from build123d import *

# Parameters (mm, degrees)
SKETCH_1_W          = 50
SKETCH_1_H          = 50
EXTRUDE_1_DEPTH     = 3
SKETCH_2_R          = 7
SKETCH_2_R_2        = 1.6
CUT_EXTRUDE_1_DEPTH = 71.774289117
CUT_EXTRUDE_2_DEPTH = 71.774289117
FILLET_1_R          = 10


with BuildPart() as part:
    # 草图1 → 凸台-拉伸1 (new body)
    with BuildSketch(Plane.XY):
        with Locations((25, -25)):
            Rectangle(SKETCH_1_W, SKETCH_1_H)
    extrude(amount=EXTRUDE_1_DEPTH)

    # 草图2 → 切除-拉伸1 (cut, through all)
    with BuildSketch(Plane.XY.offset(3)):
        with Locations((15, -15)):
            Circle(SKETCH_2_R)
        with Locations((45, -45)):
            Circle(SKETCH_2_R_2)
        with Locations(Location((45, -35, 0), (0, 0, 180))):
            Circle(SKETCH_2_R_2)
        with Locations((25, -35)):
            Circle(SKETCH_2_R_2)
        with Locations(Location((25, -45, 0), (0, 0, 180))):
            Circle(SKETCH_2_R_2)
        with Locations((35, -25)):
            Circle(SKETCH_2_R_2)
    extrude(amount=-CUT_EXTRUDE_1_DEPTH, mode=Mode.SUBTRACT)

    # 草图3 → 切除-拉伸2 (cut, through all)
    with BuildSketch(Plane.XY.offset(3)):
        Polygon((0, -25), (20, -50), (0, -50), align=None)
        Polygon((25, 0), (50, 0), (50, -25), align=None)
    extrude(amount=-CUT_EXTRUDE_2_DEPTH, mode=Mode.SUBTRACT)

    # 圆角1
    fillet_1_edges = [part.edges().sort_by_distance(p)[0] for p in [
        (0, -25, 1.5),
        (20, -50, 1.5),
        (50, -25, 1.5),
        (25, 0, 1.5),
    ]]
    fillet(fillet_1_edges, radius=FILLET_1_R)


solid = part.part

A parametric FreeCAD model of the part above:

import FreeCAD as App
import Part
import Sketcher
from FreeCAD import Vector
Q = App.Units.Quantity


def edges_at(feature, points):
    """Names of the edges that pass closest to the given points."""
    edges = feature.Shape.Edges
    near = lambda p: min(range(len(edges)), key=lambda i: edges[i].distToShape(Part.Vertex(*p))[0])
    return sorted({f"Edge{near(p) + 1}" for p in points})

doc = App.newDocument("Part")
body = doc.addObject("PartDesign::Body", "Body")

sketch1 = body.newObject("Sketcher::SketchObject", "Sketch")
sketch1.AttachmentSupport = (doc.getObject("XY_Plane"), [""])
sketch1.MapMode = "FlatFace"
sketch1.addGeometry([
    Part.LineSegment(Vector(0, 0, 0), Vector(0, -50, 0)),
    Part.LineSegment(Vector(0, -50, 0), Vector(50, -50, 0)),
    Part.LineSegment(Vector(50, -50, 0), Vector(50, 0, 0)),
    Part.LineSegment(Vector(50, 0, 0), Vector(0, 0, 0)),
], False)
sketch1.addConstraint([
    Sketcher.Constraint("Coincident", 0, 2, 1, 1),
    Sketcher.Constraint("Coincident", 1, 2, 2, 1),
    Sketcher.Constraint("Coincident", 2, 2, 3, 1),
    Sketcher.Constraint("Coincident", 3, 2, 0, 1),
    Sketcher.Constraint("Vertical", 0),
    Sketcher.Constraint("Horizontal", 1),
    Sketcher.Constraint("Vertical", 2),
    Sketcher.Constraint("Horizontal", 3),
    Sketcher.Constraint("Coincident", 3, 2, -1, 1),
    Sketcher.Constraint("Equal", 3, 0),
    Sketcher.Constraint("DistanceX", 1, 1, 1, 2, Q("50 mm")),
])
pad1 = body.newObject("PartDesign::Pad", "Pad")
pad1.Profile = sketch1
pad1.Length = 3

sketch2 = body.newObject("Sketcher::SketchObject", "Sketch001")
sketch2.AttachmentSupport = (doc.getObject("XY_Plane"), [""])
sketch2.MapMode = "FlatFace"
sketch2.AttachmentOffset = App.Placement(Vector(0, 0, 3), App.Rotation())
sketch2.addGeometry([
    Part.Circle(Vector(15, -15, 0), Vector(0, 0, 1), 7),
    Part.Circle(Vector(45, -45, 0), Vector(0, 0, 1), 1.6),
    Part.Circle(Vector(45, -35, 0), Vector(0, 0, 1), 1.6),
    Part.Circle(Vector(25, -35, 0), Vector(0, 0, 1), 1.6),
    Part.Circle(Vector(25, -45, 0), Vector(0, 0, 1), 1.6),
    Part.Circle(Vector(35, -25, 0), Vector(0, 0, 1), 1.6),
], False)
sketch2.addConstraint([
    Sketcher.Constraint("Equal", 1, 2),
    Sketcher.Constraint("Equal", 2, 3),
    Sketcher.Constraint("Equal", 3, 4),
    Sketcher.Constraint("Equal", 4, 5),
    Sketcher.Constraint("Horizontal", 2, 3, 3, 3),
    Sketcher.Constraint("Horizontal", 1, 3, 4, 3),
    Sketcher.Constraint("Vertical", 1, 3, 2, 3),
    Sketcher.Constraint("Vertical", 3, 3, 4, 3),
    Sketcher.Constraint("Diameter", 0, Q("14 mm")),
    Sketcher.Constraint("Diameter", 1, Q("3.2 mm")),
    Sketcher.Constraint("DistanceX", -1, 1, 0, 3, Q("15 mm")),
    Sketcher.Constraint("DistanceY", 0, 3, -1, 1, Q("15 mm")),
    Sketcher.Constraint("DistanceX", -1, 1, 1, 3, Q("45 mm")),
    Sketcher.Constraint("DistanceY", 1, 3, -1, 1, Q("45 mm")),
    Sketcher.Constraint("DistanceY", 2, 3, -1, 1, Q("35 mm")),
    Sketcher.Constraint("DistanceX", -1, 1, 3, 3, Q("25 mm")),
    Sketcher.Constraint("DistanceX", -1, 1, 5, 3, Q("35 mm")),
    Sketcher.Constraint("DistanceY", 5, 3, -1, 1, Q("25 mm")),
])
pocket1 = body.newObject("PartDesign::Pocket", "Pocket")
pocket1.Profile = sketch2
pocket1.Type = "ThroughAll"

sketch3 = body.newObject("Sketcher::SketchObject", "Sketch002")
sketch3.AttachmentSupport = (doc.getObject("XY_Plane"), [""])
sketch3.MapMode = "FlatFace"
sketch3.AttachmentOffset = App.Placement(Vector(0, 0, 3), App.Rotation())
sketch3.addGeometry([
    Part.LineSegment(Vector(20, -50, 0), Vector(0, -25, 0)),
    Part.LineSegment(Vector(0, -25, 0), Vector(0, -50, 0)),
    Part.LineSegment(Vector(0, -50, 0), Vector(20, -50, 0)),
    Part.LineSegment(Vector(50, 0, 0), Vector(25, 0, 0)),
    Part.LineSegment(Vector(25, 0, 0), Vector(50, -25, 0)),
    Part.LineSegment(Vector(50, -25, 0), Vector(50, 0, 0)),
], False)
sketch3.addConstraint([
    Sketcher.Constraint("Coincident", 0, 2, 1, 1),
    Sketcher.Constraint("Coincident", 1, 2, 2, 1),
    Sketcher.Constraint("Coincident", 2, 2, 0, 1),
    Sketcher.Constraint("Coincident", 3, 2, 4, 1),
    Sketcher.Constraint("Coincident", 4, 2, 5, 1),
    Sketcher.Constraint("Coincident", 5, 2, 3, 1),
    Sketcher.Constraint("Vertical", 1),
    Sketcher.Constraint("Horizontal", 2),
    Sketcher.Constraint("Horizontal", 3),
    Sketcher.Constraint("Vertical", 5),
    Sketcher.Constraint("PointOnObject", 0, 2, -2),
    Sketcher.Constraint("PointOnObject", 3, 2, -1),
    Sketcher.Constraint("Horizontal", 0, 2, 4, 2),
    Sketcher.Constraint("Equal", 3, 1),
    Sketcher.Constraint("Equal", 1, 5),
    Sketcher.Constraint("DistanceX", 2, 1, 2, 2, Q("20 mm")),
    Sketcher.Constraint("DistanceX", 3, 2, 3, 1, Q("25 mm")),
    Sketcher.Constraint("DistanceX", -1, 1, 3, 2, Q("25 mm")),
])
pocket2 = body.newObject("PartDesign::Pocket", "Pocket001")
pocket2.Profile = sketch3
pocket2.Type = "ThroughAll"
doc.recompute()

fillet = body.newObject("PartDesign::Fillet", "Fillet")
fillet.Base = (pocket2, edges_at(pocket2, [
    (0, -25, 1.5),
    (20, -50, 1.5),
    (50, -25, 1.5),
    (25, 0, 1.5),
]))
fillet.Radius = 10

doc.recompute()
